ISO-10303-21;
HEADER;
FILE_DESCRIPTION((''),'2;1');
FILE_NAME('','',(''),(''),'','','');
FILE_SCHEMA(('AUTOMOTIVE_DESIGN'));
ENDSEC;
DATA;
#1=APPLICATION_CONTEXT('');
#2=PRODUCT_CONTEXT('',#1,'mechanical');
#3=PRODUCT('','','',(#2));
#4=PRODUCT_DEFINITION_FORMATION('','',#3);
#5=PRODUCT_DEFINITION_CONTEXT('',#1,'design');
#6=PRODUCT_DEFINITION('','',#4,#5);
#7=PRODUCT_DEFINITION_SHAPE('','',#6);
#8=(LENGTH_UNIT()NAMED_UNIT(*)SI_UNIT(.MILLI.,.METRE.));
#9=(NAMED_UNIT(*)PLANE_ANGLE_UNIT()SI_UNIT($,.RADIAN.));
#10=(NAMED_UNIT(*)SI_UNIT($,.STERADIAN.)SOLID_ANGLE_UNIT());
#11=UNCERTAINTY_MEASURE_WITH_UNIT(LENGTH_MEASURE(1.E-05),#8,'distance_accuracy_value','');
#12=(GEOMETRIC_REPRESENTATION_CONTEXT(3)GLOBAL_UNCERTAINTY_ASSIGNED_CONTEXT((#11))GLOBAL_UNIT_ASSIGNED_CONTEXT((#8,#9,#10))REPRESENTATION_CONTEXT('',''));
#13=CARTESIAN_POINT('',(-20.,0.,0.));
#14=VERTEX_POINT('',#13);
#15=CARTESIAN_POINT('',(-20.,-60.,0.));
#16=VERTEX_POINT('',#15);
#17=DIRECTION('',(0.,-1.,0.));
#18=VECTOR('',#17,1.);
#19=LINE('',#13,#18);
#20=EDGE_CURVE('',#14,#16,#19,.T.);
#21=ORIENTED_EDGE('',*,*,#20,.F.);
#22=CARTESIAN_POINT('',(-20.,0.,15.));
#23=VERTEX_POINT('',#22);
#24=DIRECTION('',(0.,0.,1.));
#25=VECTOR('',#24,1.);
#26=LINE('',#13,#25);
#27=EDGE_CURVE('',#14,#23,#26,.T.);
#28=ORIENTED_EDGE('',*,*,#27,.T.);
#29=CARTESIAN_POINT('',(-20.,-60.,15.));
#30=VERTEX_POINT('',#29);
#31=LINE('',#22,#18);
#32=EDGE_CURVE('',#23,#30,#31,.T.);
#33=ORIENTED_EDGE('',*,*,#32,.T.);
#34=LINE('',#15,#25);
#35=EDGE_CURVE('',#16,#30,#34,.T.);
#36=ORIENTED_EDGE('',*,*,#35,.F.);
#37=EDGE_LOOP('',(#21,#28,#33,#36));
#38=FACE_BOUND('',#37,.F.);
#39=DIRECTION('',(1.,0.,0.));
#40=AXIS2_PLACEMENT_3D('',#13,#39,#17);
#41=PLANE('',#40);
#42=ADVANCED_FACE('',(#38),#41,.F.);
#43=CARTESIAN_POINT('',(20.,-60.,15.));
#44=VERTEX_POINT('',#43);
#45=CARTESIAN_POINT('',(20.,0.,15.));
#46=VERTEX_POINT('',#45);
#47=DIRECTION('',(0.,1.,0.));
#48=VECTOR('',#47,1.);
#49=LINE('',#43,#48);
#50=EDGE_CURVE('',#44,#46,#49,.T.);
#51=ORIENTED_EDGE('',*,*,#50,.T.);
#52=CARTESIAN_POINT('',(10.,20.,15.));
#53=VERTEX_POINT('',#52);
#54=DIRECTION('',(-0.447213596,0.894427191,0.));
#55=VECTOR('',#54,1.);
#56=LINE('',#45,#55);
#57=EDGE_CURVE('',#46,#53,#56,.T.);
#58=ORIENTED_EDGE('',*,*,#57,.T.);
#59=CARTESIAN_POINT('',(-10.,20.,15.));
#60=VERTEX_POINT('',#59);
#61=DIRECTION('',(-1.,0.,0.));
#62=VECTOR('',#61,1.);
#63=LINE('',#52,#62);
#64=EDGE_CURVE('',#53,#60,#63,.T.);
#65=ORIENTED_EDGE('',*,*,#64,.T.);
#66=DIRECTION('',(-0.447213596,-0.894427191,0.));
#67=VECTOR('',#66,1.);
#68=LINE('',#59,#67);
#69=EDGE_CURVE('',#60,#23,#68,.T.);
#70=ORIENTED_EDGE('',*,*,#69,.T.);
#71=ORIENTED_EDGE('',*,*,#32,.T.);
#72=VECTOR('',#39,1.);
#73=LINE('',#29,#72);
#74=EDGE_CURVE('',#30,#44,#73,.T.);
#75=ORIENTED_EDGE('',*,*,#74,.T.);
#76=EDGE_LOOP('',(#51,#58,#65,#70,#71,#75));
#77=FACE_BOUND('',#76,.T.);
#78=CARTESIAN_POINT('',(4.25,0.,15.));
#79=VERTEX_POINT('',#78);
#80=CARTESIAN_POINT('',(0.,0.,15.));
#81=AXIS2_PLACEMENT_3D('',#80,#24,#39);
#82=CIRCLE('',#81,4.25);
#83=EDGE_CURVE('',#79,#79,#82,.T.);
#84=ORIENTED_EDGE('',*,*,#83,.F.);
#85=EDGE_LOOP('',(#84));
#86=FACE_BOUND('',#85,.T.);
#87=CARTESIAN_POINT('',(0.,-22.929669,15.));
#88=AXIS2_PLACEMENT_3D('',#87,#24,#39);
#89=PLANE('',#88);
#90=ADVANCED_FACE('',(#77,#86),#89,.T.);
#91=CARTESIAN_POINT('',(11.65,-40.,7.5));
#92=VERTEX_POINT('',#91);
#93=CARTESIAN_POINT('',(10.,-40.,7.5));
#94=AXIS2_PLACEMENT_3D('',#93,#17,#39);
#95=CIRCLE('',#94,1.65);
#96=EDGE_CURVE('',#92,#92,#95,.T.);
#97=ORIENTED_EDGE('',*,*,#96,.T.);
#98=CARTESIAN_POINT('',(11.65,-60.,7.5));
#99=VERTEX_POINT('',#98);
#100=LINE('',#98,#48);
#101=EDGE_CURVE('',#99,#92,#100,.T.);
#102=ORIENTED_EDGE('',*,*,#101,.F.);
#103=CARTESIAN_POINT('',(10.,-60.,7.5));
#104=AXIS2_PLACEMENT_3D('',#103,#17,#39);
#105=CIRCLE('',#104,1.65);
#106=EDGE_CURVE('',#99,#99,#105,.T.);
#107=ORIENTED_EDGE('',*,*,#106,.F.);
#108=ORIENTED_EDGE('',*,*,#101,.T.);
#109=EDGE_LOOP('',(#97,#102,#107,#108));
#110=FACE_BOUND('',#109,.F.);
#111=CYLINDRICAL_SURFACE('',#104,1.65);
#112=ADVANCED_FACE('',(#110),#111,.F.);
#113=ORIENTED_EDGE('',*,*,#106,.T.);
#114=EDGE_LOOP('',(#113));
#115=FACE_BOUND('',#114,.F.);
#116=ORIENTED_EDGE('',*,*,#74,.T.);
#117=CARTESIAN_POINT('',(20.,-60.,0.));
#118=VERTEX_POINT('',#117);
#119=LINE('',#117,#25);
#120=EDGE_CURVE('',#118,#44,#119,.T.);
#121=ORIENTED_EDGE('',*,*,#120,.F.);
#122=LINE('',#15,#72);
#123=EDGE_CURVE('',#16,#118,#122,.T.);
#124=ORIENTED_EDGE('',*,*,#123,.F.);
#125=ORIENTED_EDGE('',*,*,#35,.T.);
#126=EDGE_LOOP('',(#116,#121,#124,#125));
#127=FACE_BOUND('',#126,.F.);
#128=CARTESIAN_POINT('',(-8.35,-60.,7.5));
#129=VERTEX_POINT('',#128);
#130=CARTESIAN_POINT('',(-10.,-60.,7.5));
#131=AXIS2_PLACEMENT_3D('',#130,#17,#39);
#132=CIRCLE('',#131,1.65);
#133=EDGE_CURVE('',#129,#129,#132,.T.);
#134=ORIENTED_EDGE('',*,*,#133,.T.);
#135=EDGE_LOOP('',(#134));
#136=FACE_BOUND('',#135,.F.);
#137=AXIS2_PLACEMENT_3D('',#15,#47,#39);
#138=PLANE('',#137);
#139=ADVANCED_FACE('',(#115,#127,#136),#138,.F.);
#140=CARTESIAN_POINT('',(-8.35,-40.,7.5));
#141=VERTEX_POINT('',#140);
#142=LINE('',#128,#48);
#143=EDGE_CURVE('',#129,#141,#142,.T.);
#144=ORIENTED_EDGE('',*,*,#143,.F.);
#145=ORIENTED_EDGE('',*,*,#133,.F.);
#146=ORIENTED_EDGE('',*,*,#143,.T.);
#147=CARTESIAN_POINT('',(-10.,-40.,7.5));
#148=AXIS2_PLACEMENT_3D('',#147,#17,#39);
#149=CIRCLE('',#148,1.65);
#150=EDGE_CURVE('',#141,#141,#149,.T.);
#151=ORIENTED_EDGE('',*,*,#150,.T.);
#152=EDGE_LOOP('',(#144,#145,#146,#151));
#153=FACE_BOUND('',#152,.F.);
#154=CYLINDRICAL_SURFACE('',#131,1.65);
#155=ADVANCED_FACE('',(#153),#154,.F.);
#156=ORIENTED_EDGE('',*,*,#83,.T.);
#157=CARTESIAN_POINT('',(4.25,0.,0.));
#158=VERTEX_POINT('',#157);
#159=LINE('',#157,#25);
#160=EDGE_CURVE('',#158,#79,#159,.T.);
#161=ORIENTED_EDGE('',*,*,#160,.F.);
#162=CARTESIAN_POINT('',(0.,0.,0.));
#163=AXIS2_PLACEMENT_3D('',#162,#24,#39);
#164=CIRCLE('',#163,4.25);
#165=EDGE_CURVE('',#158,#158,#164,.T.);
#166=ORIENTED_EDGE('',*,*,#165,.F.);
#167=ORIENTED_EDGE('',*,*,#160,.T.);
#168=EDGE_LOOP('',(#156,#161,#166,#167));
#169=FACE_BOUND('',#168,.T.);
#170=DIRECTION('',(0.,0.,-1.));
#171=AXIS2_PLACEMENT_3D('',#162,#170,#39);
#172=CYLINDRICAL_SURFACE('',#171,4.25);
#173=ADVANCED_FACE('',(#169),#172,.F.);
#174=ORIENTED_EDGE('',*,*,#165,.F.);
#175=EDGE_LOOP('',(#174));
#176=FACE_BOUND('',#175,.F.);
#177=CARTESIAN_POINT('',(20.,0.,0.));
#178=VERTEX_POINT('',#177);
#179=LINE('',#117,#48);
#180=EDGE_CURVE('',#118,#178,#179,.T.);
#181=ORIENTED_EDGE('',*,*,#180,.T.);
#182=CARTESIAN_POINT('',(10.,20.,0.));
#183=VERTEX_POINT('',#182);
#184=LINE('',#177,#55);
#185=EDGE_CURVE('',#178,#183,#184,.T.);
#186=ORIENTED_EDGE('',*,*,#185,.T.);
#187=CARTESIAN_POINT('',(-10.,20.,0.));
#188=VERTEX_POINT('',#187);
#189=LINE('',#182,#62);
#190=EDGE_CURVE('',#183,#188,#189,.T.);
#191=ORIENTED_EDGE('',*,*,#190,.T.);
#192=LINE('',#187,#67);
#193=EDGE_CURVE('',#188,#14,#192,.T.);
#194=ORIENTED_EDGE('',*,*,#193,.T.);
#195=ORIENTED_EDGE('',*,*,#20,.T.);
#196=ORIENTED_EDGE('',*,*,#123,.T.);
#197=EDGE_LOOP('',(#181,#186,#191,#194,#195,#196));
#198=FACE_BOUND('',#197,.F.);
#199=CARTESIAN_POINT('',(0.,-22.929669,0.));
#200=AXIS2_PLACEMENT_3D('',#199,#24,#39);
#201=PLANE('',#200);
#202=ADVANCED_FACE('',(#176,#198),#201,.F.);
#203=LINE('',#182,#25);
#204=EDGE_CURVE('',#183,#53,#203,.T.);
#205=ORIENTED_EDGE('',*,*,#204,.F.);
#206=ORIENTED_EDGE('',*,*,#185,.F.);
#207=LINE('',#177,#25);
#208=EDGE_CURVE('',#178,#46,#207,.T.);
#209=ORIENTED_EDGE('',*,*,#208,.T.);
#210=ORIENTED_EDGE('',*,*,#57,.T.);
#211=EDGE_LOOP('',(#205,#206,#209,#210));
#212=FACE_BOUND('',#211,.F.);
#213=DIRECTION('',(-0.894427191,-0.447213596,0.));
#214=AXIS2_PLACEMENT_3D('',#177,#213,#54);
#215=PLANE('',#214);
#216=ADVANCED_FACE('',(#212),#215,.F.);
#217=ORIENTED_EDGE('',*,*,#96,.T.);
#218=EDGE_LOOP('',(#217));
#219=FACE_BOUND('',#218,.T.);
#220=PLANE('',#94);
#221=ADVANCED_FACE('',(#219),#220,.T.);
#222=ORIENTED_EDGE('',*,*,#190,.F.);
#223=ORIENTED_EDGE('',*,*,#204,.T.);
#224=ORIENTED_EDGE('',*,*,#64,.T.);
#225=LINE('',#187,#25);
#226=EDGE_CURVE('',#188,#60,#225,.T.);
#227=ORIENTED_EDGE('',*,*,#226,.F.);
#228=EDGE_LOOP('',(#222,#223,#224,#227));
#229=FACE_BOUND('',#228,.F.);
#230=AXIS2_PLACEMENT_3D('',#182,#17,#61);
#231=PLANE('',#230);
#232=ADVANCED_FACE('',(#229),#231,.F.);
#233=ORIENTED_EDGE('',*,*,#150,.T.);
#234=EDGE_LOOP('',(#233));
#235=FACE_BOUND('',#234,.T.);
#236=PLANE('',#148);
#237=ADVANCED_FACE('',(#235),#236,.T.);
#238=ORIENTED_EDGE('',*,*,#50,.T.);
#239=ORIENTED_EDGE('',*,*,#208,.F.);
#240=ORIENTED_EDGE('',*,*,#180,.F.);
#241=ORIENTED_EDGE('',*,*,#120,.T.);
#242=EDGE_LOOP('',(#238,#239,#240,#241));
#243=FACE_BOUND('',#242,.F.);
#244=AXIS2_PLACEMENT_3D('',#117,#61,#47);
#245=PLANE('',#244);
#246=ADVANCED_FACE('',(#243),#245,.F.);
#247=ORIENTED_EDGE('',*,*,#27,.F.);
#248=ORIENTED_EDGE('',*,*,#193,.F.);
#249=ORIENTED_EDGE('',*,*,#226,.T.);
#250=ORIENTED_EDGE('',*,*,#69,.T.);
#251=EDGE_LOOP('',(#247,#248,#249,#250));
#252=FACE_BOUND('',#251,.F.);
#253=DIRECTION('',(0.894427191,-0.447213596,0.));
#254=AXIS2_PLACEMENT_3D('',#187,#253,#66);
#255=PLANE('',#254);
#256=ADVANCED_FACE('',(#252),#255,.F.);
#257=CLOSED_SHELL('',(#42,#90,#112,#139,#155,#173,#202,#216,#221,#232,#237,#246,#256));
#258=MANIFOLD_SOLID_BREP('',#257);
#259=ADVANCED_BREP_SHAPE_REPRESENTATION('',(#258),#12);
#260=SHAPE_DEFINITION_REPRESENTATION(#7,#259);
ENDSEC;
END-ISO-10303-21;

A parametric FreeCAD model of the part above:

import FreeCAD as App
import Part
import Sketcher

V = App.Vector
Q = App.Units.Quantity

doc = App.newDocument("Part")
body = doc.addObject("PartDesign::Body", "Body")

sketch1 = doc.addObject("Sketcher::SketchObject", "Sketch")
body.addObject(sketch1)
sketch1.AttachmentSupport = (doc.XY_Plane, [""])
sketch1.MapMode = "FlatFace"
sketch1.addGeometry(Part.LineSegment(V(-20, -60, 0), V(20, -60, 0)), False)
sketch1.addGeometry(Part.LineSegment(V(20, -60, 0), V(20, 0, 0)), False)
sketch1.addGeometry(Part.LineSegment(V(20, 0, 0), V(10, 20, 0)), False)
sketch1.addGeometry(Part.LineSegment(V(10, 20, 0), V(-10, 20, 0)), False)
sketch1.addGeometry(Part.LineSegment(V(-10, 20, 0), V(-20, 0, 0)), False)
sketch1.addGeometry(Part.LineSegment(V(-20, 0, 0), V(-20, -60, 0)), False)
sketch1.addGeometry(Part.Circle(V(0, 0, 0), V(0, 0, 1), 4.2), False)
sketch1.addConstraint(Sketcher.Constraint("Coincident", 0, 2, 1, 1))
sketch1.addConstraint(Sketcher.Constraint("Coincident", 1, 2, 2, 1))
sketch1.addConstraint(Sketcher.Constraint("Coincident", 2, 2, 3, 1))
sketch1.addConstraint(Sketcher.Constraint("Coincident", 3, 2, 4, 1))
sketch1.addConstraint(Sketcher.Constraint("Coincident", 4, 2, 5, 1))
sketch1.addConstraint(Sketcher.Constraint("Coincident", 5, 2, 0, 1))
sketch1.addConstraint(Sketcher.Constraint("Horizontal", 0))
sketch1.addConstraint(Sketcher.Constraint("Vertical", 1))
sketch1.addConstraint(Sketcher.Constraint("Horizontal", 3))
sketch1.addConstraint(Sketcher.Constraint("Vertical", 5))
sketch1.addConstraint(Sketcher.Constraint("Coincident", 6, 3, -1, 1))
sketch1.addConstraint(Sketcher.Constraint("Symmetric", 1, 2, 4, 2, -1, 1))
sketch1.addConstraint(Sketcher.Constraint("PointOnObject", 1, 2, -1))
sketch1.addConstraint(Sketcher.Constraint("Equal", 2, 4))
sketch1.addConstraint(Sketcher.Constraint("Diameter", 6, Q("8.5 mm")))
sketch1.addConstraint(Sketcher.Constraint("DistanceX", 0, 1, 0, 2, Q("40 mm")))
sketch1.addConstraint(Sketcher.Constraint("DistanceX", 3, 2, 3, 1, Q("20 mm")))
sketch1.addConstraint(Sketcher.Constraint("DistanceY", 1, 1, 1, 2, Q("60 mm")))
sketch1.addConstraint(Sketcher.Constraint("DistanceY", -1, 1, 2, 2, Q("20 mm")))
pad1 = doc.addObject("PartDesign::Pad", "Pad")
body.addObject(pad1)
pad1.Profile = sketch1
pad1.Length = 15

sketch2 = doc.addObject("Sketcher::SketchObject", "Sketch001")
body.addObject(sketch2)
sketch2.AttachmentSupport = (doc.XZ_Plane, [""])
sketch2.MapMode = "FlatFace"
sketch2.AttachmentOffset = App.Placement(V(0, 0, 60), App.Rotation())
sketch2.addGeometry(Part.Circle(V(10, 7.5, 0), V(0, 0, 1), 1.6), False)
sketch2.addGeometry(Part.Circle(V(-10, 7.5, 0), V(0, 0, 1), 1.6), False)
sketch2.addConstraint(Sketcher.Constraint("Equal", 0, 1))
sketch2.addConstraint(Sketcher.Constraint("Symmetric", 0, 3, 1, 3, -2))
sketch2.addConstraint(Sketcher.Constraint("Diameter", 0, Q("3.3 mm")))
sketch2.addConstraint(Sketcher.Constraint("DistanceX", -1, 1, 0, 3, Q("10 mm")))
sketch2.addConstraint(Sketcher.Constraint("DistanceY", -1, 1, 0, 3, Q("7.5 mm")))
pocket1 = doc.addObject("PartDesign::Pocket", "Pocket")
body.addObject(pocket1)
pocket1.Profile = sketch2
pocket1.Length = 20

doc.recompute()
